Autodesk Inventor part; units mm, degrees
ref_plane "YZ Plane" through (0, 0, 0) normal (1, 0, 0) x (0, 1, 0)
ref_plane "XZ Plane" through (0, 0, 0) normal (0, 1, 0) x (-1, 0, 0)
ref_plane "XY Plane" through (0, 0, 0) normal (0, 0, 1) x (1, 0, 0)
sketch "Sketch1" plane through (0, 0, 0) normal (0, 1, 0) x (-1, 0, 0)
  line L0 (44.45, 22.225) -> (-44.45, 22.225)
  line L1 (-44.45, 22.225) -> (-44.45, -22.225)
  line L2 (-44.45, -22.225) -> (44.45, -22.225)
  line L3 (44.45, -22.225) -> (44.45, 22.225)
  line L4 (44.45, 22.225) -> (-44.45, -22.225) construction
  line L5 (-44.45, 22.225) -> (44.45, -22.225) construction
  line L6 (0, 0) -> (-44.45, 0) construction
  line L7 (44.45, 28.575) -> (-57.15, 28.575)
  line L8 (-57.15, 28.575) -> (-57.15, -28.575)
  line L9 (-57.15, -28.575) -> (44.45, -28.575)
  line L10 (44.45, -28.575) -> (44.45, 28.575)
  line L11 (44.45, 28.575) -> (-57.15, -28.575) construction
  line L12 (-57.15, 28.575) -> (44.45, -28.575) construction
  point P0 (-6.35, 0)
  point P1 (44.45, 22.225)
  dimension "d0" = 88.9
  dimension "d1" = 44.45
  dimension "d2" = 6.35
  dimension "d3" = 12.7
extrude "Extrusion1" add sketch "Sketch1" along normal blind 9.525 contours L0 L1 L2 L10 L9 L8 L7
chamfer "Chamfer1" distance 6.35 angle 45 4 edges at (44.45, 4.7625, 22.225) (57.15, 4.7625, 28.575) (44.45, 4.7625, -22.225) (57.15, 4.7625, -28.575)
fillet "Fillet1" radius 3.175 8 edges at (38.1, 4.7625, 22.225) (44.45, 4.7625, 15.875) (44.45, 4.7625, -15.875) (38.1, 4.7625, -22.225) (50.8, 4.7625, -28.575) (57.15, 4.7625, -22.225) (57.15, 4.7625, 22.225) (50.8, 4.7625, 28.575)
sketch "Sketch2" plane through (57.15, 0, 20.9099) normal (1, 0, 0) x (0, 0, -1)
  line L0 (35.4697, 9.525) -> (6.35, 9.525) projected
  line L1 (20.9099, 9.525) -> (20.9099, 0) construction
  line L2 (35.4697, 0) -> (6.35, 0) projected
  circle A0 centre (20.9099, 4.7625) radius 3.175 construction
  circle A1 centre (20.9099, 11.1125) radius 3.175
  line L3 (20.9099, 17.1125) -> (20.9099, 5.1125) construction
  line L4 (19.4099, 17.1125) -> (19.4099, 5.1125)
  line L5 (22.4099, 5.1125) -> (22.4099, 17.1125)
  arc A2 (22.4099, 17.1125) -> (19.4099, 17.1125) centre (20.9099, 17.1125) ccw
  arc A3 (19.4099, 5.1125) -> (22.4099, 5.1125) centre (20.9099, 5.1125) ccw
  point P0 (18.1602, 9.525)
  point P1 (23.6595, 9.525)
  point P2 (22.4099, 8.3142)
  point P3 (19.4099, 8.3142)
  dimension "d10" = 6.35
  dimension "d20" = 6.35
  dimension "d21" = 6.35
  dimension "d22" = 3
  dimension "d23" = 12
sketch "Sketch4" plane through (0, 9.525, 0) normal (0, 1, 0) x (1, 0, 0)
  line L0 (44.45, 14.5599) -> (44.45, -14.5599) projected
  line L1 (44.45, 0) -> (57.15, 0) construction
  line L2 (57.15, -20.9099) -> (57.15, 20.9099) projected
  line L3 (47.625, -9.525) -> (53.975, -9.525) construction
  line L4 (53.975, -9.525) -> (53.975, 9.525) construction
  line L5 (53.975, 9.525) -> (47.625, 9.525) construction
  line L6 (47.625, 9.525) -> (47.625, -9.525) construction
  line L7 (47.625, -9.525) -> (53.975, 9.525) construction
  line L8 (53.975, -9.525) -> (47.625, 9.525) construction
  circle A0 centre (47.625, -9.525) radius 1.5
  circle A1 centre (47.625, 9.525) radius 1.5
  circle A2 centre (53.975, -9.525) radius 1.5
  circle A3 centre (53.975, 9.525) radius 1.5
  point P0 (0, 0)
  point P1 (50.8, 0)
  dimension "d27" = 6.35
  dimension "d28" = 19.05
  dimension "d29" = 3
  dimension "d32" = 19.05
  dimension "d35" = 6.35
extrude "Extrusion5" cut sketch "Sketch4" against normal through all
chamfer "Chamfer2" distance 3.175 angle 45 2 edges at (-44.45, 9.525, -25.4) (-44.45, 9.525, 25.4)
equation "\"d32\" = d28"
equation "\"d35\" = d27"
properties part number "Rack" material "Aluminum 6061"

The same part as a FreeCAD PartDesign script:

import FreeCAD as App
import Part
import Sketcher
Q = App.Units.Quantity


def edges_at(feature, points):
    """Names of the edges that pass closest to the given points."""
    edges = feature.Shape.Edges
    near = lambda p: min(range(len(edges)), key=lambda i: edges[i].distToShape(Part.Vertex(*p))[0])
    return sorted({f"Edge{near(p) + 1}" for p in points})


def add_polygon(sketch, points):
    """Adds a closed chain of lines whose ends are joined by coincident constraints."""
    first, n = sketch.GeometryCount, len(points)
    for a, b in zip(points, points[1:] + points[:1]):
        sketch.addGeometry(Part.LineSegment(App.Vector(*a, 0), App.Vector(*b, 0)), False)
    for i in range(n):
        sketch.addConstraint(Sketcher.Constraint("Coincident", first + i, 2, first + (i + 1) % n, 1))

doc = App.newDocument("Part")
body = doc.addObject("PartDesign::Body", "Body")

sketch1 = doc.addObject("Sketcher::SketchObject", "Sketch")
body.addObject(sketch1)
sketch1.AttachmentSupport = (doc.XZ_Plane, [""])
sketch1.MapMode = "FlatFace"
add_polygon(sketch1, [(44, 22), (-44, 22), (-44, 29), (57, 29), (57, -29), (-44, -29), (-44, -22), (44, -22)])
sketch1.addConstraint([
    Sketcher.Constraint("Horizontal", 0),
    Sketcher.Constraint("Vertical", 1),
    Sketcher.Constraint("Horizontal", 2),
    Sketcher.Constraint("Vertical", 3),
    Sketcher.Constraint("Horizontal", 4),
    Sketcher.Constraint("Vertical", 5),
    Sketcher.Constraint("Horizontal", 6),
    Sketcher.Constraint("Vertical", 7),
    Sketcher.Constraint("Symmetric", 0, 2, 6, 2, -1, 1),
    Sketcher.Constraint("Symmetric", 1, 2, 4, 2, -1),
    Sketcher.Constraint("DistanceX", 0, 2, 0, 1, Q("3.5 in")),
    Sketcher.Constraint("DistanceY", 1, 1, 1, 2, Q("0.25 in")),
    Sketcher.Constraint("DistanceY", 7, 1, 7, 2, Q("1.75 in")),
    Sketcher.Constraint("DistanceX", 6, 2, 3, 2, Q("0.5 in")),
])
pad1 = doc.addObject("PartDesign::Pad", "Pad")
body.addObject(pad1)
pad1.Profile = sketch1
pad1.Length = Q("0.375 in")
pad1.Reversed = True
doc.recompute()

chamfer = doc.addObject("PartDesign::Chamfer", "Chamfer")
body.addObject(chamfer)
chamfer.Base = (pad1, edges_at(pad1, [
    (44.45, 4.763, 22.225),
    (57.15, 4.763, 28.575),
    (44.45, 4.763, -22.225),
    (57.15, 4.763, -28.575),
]))
chamfer.Size = Q("0.25 in")
doc.recompute()

fillet = doc.addObject("PartDesign::Fillet", "Fillet")
body.addObject(fillet)
fillet.Base = (chamfer, edges_at(chamfer, [
    (38.1, 4.763, 22.225),
    (44.45, 4.763, 15.875),
    (44.45, 4.763, -15.875),
    (38.1, 4.763, -22.225),
    (50.8, 4.763, -28.575),
    (57.15, 4.763, -22.225),
    (57.15, 4.763, 22.225),
    (50.8, 4.763, 28.575),
]))
fillet.Radius = Q("0.125 in")

sketch2 = doc.addObject("Sketcher::SketchObject", "Sketch001")
body.addObject(sketch2)
sketch2.AttachmentSupport = (doc.XZ_Plane, [""])
sketch2.MapMode = "FlatFace"
sketch2.AttachmentOffset = App.Placement(App.Vector(0, 0, -0.375 * 25.4), App.Rotation())
sketch2.addGeometry([
    Part.Circle(App.Vector(47.6, 9.5, 0), App.Vector(0, 0, 1), 1.5),
    Part.Circle(App.Vector(47.6, -9.5, 0), App.Vector(0, 0, 1), 1.5),
    Part.Circle(App.Vector(54, 9.5, 0), App.Vector(0, 0, 1), 1.5),
    Part.Circle(App.Vector(54, -9.5, 0), App.Vector(0, 0, 1), 1.5),
], False)
sketch2.addConstraint([
    Sketcher.Constraint("Equal", 0, 1),
    Sketcher.Constraint("Equal", 1, 2),
    Sketcher.Constraint("Equal", 2, 3),
    Sketcher.Constraint("Symmetric", 0, 3, 1, 3, -1),
    Sketcher.Constraint("Symmetric", 2, 3, 3, 3, -1),
    Sketcher.Constraint("Horizontal", 0, 3, 2, 3),
    Sketcher.Constraint("Diameter", 0, Q("0.1181 in")),
    Sketcher.Constraint("DistanceY", 1, 3, 0, 3, Q("0.75 in")),
    Sketcher.Constraint("DistanceX", 0, 3, 2, 3, Q("0.25 in")),
    Sketcher.Constraint("DistanceX", -1, 1, 0, 3, Q("1.875 in")),
])
pocket1 = doc.addObject("PartDesign::Pocket", "Pocket")
body.addObject(pocket1)
pocket1.Profile = sketch2
pocket1.Type = "ThroughAll"
pocket1.Reversed = True
doc.recompute()

chamfer2 = doc.addObject("PartDesign::Chamfer", "Chamfer001")
body.addObject(chamfer2)
chamfer2.Base = (pocket1, edges_at(pocket1, [(-44.45, 9.525, -25.4), (-44.45, 9.525, 25.4)]))
chamfer2.Size = Q("0.125 in")

doc.recompute()
